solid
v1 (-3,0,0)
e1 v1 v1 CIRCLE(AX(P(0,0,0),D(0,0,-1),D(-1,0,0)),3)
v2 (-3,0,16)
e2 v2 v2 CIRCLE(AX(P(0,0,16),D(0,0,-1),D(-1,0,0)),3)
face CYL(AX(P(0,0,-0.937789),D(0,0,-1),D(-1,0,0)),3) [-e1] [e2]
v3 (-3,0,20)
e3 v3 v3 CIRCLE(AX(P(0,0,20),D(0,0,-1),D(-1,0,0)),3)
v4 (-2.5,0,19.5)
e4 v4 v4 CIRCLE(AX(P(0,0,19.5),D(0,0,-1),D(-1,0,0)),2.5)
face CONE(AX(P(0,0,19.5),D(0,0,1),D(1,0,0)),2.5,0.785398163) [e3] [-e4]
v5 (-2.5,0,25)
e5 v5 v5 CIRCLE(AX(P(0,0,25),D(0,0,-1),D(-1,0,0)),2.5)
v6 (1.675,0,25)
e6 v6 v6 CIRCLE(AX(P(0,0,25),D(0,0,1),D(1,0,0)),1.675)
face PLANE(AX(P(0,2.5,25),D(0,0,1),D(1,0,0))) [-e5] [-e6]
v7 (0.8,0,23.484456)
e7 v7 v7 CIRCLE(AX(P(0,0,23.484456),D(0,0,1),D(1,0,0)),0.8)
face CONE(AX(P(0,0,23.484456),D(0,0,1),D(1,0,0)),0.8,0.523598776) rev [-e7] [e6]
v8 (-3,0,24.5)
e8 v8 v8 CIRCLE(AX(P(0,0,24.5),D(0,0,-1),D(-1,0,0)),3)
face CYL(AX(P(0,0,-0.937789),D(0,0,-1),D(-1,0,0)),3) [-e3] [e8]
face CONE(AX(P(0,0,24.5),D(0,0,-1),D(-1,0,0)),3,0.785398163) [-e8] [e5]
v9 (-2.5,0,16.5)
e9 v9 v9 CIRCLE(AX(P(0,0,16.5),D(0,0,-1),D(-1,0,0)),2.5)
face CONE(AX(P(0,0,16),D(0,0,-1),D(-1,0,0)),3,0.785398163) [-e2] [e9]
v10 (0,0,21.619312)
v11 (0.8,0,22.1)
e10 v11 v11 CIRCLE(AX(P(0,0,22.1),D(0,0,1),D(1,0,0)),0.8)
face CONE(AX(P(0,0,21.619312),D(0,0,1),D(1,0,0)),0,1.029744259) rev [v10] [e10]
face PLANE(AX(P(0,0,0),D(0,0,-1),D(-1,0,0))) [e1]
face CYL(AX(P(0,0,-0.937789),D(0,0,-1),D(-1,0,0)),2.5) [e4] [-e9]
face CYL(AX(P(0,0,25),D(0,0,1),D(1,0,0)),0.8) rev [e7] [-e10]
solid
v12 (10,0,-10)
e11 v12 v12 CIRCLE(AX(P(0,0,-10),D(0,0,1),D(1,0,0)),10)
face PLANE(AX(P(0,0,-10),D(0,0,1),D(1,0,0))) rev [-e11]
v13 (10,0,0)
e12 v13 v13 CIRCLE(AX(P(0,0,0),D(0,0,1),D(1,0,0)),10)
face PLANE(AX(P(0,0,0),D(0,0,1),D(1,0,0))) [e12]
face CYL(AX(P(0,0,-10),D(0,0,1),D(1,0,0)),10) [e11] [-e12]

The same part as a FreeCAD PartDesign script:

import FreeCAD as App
import Part
import Sketcher
Q = App.Units.Quantity

doc = App.newDocument("Part")
body = doc.addObject("PartDesign::Body", "Body")

sketch1 = body.newObject("Sketcher::SketchObject", "Sketch")
sketch1.AttachmentSupport = (doc.getObject("XY_Plane"), [""])
sketch1.MapMode = "FlatFace"
sketch1.addGeometry(Part.Circle(App.Vector(0, 0, 0), App.Vector(0, 0, 1), 10), False)
sketch1.addConstraint([
    Sketcher.Constraint("Coincident", 0, 3, -1, 1),
    Sketcher.Constraint("Diameter", 0, Q("20 mm")),
])
pad1 = body.newObject("PartDesign::Pad", "Pad")
pad1.Profile = sketch1
pad1.Length = 10
pad1.Reversed = True
body2 = doc.addObject("PartDesign::Body", "Body001")

sketch2 = body2.newObject("Sketcher::SketchObject", "Sketch001")
sketch2.AttachmentSupport = (doc.getObject("YZ_Plane001"), [""])
sketch2.MapMode = "FlatFace"
sketch2.addGeometry([
    Part.LineSegment(App.Vector(0, 0, 0), App.Vector(3, 0, 0)),
    Part.LineSegment(App.Vector(3, 0, 0), App.Vector(3, 16, 0)),
    Part.LineSegment(App.Vector(3, 16, 0), App.Vector(2.5, 16.5, 0)),
    Part.LineSegment(App.Vector(2.5, 16.5, 0), App.Vector(2.5, 19.5, 0)),
    Part.LineSegment(App.Vector(2.5, 19.5, 0), App.Vector(3, 20, 0)),
    Part.LineSegment(App.Vector(3, 20, 0), App.Vector(3, 24.5, 0)),
    Part.LineSegment(App.Vector(3, 24.5, 0), App.Vector(2.5, 25, 0)),
    Part.LineSegment(App.Vector(2.5, 25, 0), App.Vector(0, 25, 0)),
    Part.LineSegment(App.Vector(0, 25, 0), App.Vector(0, 0, 0)),
], False)
sketch2.addConstraint([
    Sketcher.Constraint("Coincident", 0, 2, 1, 1),
    Sketcher.Constraint("Coincident", 1, 2, 2, 1),
    Sketcher.Constraint("Coincident", 2, 2, 3, 1),
    Sketcher.Constraint("Coincident", 3, 2, 4, 1),
    Sketcher.Constraint("Coincident", 4, 2, 5, 1),
    Sketcher.Constraint("Coincident", 5, 2, 6, 1),
    Sketcher.Constraint("Coincident", 6, 2, 7, 1),
    Sketcher.Constraint("Coincident", 7, 2, 8, 1),
    Sketcher.Constraint("Coincident", 8, 2, 0, 1),
    Sketcher.Constraint("Horizontal", 0),
    Sketcher.Constraint("Vertical", 1),
    Sketcher.Constraint("Vertical", 3),
    Sketcher.Constraint("Vertical", 5),
    Sketcher.Constraint("Horizontal", 7),
    Sketcher.Constraint("Vertical", 8),
    Sketcher.Constraint("Coincident", 8, 2, -1, 1),
    Sketcher.Constraint("Perpendicular", 2, 4),
    Sketcher.Constraint("Perpendicular", 4, 6),
    Sketcher.Constraint("Vertical", 1, 2, 4, 2),
    Sketcher.Constraint("Vertical", 3, 2, 6, 2),
    Sketcher.Constraint("Equal", 0, 3),
    Sketcher.Constraint("Equal", 2, 4),
    Sketcher.Constraint("DistanceX", 0, 1, 0, 2, Q("3 mm")),
    Sketcher.Constraint("DistanceY", 1, 1, 1, 2, Q("16 mm")),
    Sketcher.Constraint("DistanceY", 8, 2, 8, 1, Q("25 mm")),
    Sketcher.Constraint("DistanceX", 7, 2, 7, 1, Q("2.5 mm")),
])
revolution = body2.newObject("PartDesign::Revolution", "Revolution")
revolution.Profile = sketch2
revolution.ReferenceAxis = (sketch2, ["V_Axis"])
revolution.Angle = 360

sketch3 = body2.newObject("Sketcher::SketchObject", "Sketch002")
sketch3.AttachmentSupport = (doc.getObject("XZ_Plane001"), [""])
sketch3.MapMode = "FlatFace"
sketch3.addGeometry([
    Part.LineSegment(App.Vector(0, 21.619312, 0), App.Vector(0.8, 22.1, 0)),
    Part.LineSegment(App.Vector(0.8, 22.1, 0), App.Vector(0.8, 23.484456, 0)),
    Part.LineSegment(App.Vector(0.8, 23.484456, 0), App.Vector(1.675, 25, 0)),
    Part.LineSegment(App.Vector(1.675, 25, 0), App.Vector(0, 25, 0)),
    Part.LineSegment(App.Vector(0, 25, 0), App.Vector(0, 21.619312, 0)),
], False)
sketch3.addConstraint([
    Sketcher.Constraint("Coincident", 0, 2, 1, 1),
    Sketcher.Constraint("Coincident", 1, 2, 2, 1),
    Sketcher.Constraint("Coincident", 2, 2, 3, 1),
    Sketcher.Constraint("Coincident", 3, 2, 4, 1),
    Sketcher.Constraint("Coincident", 4, 2, 0, 1),
    Sketcher.Constraint("Vertical", 1),
    Sketcher.Constraint("Horizontal", 3),
    Sketcher.Constraint("Vertical", 4),
    Sketcher.Constraint("PointOnObject", 3, 2, -2),
    Sketcher.Constraint("Angle", 0, Q("31 deg")),
    Sketcher.Constraint("Angle", 2, Q("60 deg")),
    Sketcher.Constraint("DistanceY", -1, 1, 2, 2, Q("25 mm")),
    Sketcher.Constraint("DistanceX", -1, 1, 0, 2, Q("0.8 mm")),
    Sketcher.Constraint("DistanceY", -1, 1, 0, 2, Q("22.1 mm")),
    Sketcher.Constraint("Distance", 2, Q("1.75 mm")),
])
groove = body2.newObject("PartDesign::Groove", "Groove")
groove.Profile = sketch3
groove.ReferenceAxis = (sketch3, ["V_Axis"])
groove.Angle = 360

doc.recompute()
